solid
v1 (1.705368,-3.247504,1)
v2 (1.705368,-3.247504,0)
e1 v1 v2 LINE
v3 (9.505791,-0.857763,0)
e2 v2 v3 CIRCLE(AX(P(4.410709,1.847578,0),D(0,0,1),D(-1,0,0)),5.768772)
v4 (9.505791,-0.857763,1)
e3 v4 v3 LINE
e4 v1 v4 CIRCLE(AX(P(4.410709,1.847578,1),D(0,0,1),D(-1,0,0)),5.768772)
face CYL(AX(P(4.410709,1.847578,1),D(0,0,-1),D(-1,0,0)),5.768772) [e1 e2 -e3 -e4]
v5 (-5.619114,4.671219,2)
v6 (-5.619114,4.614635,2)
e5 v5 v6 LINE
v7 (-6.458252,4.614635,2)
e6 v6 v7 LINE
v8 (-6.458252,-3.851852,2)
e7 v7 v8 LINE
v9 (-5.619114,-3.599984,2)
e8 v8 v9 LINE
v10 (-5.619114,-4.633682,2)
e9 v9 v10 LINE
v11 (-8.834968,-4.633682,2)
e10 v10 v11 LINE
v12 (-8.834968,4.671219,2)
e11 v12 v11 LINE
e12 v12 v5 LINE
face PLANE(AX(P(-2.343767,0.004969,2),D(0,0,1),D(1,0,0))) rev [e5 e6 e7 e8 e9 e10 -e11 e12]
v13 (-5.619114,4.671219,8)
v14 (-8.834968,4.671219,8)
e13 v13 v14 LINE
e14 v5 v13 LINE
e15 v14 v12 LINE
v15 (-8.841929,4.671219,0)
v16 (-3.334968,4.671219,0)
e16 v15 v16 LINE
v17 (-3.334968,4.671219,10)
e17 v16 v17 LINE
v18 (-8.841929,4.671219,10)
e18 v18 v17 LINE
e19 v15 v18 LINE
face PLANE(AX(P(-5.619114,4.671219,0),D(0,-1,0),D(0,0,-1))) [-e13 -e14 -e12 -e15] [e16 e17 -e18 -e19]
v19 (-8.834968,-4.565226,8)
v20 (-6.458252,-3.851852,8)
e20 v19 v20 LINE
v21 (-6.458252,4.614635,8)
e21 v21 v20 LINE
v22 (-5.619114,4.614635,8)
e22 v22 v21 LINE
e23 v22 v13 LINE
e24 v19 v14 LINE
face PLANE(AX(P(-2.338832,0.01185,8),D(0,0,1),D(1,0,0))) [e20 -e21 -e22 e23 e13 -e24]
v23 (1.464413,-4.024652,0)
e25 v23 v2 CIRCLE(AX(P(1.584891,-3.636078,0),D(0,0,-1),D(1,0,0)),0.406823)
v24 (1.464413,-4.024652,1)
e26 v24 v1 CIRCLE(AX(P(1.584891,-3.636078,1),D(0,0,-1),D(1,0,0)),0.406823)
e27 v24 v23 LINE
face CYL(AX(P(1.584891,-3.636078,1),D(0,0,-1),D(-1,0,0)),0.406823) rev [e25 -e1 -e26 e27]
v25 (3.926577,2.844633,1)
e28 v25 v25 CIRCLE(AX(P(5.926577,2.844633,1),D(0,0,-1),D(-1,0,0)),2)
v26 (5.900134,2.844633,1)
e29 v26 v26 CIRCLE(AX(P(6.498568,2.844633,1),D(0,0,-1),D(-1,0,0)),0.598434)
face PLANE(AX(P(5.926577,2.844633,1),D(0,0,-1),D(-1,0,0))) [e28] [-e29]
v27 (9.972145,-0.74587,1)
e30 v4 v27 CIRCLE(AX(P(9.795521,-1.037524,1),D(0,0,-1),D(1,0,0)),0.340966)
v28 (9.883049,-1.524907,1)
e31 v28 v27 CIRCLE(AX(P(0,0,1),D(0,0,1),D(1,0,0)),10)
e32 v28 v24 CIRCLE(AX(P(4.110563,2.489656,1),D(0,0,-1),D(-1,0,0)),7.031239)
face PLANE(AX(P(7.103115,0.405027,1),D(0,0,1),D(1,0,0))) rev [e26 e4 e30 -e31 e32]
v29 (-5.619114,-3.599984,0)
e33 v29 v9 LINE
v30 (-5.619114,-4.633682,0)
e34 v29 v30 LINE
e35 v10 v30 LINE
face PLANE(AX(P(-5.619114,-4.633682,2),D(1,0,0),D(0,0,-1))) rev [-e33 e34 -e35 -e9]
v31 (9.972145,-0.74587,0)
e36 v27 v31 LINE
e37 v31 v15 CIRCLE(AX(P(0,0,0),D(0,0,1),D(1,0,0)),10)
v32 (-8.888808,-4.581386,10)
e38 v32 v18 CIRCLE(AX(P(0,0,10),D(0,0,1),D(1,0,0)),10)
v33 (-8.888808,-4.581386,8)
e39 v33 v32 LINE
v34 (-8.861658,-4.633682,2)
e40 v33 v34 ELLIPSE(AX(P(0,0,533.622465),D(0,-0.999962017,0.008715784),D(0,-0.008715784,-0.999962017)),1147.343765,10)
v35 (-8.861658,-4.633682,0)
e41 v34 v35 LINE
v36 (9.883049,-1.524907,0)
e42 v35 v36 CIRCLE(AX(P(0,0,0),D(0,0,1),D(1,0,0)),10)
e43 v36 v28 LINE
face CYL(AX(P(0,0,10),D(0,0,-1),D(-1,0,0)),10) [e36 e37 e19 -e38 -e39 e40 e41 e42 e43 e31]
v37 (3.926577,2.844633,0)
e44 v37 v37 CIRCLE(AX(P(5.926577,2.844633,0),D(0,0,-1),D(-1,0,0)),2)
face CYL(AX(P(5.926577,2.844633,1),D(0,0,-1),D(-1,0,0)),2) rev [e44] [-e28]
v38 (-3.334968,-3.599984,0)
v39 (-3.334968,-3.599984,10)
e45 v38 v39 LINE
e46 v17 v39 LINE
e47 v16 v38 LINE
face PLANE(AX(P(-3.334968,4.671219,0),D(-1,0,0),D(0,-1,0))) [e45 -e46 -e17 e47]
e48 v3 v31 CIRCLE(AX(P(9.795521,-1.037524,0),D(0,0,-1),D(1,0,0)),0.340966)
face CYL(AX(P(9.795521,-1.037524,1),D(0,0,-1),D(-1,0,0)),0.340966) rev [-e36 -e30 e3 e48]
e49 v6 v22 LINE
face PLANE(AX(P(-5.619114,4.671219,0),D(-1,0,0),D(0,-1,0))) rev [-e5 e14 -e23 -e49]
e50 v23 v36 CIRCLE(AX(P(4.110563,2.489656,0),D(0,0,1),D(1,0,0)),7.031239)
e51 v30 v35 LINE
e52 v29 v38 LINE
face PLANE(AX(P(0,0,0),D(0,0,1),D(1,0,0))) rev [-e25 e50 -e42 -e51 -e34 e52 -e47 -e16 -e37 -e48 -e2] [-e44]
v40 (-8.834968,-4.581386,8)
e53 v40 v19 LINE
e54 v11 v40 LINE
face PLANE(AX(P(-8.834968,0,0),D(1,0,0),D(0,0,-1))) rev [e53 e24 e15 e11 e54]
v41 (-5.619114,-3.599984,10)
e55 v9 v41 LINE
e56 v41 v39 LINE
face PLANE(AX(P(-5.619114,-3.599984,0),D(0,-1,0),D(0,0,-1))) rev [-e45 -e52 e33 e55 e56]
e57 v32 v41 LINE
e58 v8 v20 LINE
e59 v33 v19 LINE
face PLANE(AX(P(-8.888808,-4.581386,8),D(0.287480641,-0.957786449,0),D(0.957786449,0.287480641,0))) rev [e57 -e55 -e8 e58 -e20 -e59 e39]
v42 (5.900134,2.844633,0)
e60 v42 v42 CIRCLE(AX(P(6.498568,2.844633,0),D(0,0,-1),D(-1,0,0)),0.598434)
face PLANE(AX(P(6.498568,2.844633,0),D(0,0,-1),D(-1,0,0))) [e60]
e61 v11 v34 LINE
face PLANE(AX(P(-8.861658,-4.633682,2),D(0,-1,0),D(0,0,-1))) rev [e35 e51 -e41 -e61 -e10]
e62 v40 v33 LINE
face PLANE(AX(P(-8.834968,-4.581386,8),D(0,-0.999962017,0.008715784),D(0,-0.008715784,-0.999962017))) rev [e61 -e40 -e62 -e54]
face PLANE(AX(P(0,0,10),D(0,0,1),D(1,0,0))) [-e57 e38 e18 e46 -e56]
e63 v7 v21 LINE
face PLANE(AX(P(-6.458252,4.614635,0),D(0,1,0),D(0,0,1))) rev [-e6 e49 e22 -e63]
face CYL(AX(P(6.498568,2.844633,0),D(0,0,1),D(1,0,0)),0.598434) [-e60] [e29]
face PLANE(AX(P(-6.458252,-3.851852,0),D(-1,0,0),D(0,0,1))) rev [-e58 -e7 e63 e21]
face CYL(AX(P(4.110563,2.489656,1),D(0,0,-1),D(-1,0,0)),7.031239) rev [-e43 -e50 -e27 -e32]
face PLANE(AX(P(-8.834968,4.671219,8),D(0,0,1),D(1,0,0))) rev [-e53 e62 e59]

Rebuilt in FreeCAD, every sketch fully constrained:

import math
import FreeCAD as App
import Part
import Sketcher
from FreeCAD import Vector


def add_polygon(sketch, points):
    """Adds a closed chain of lines whose ends are joined by coincident constraints."""
    first, n = sketch.GeometryCount, len(points)
    for a, b in zip(points, points[1:] + points[:1]):
        sketch.addGeometry(Part.LineSegment(App.Vector(*a, 0), App.Vector(*b, 0)), False)
    for i in range(n):
        sketch.addConstraint(Sketcher.Constraint("Coincident", first + i, 2, first + (i + 1) % n, 1))

doc = App.newDocument("Part")
body = doc.addObject("PartDesign::Body", "Body")

# Sketch on XY plane
sketch1 = body.newObject("Sketcher::SketchObject", "Sketch")
sketch1.AttachmentSupport = (doc.getObject("XY_Plane"), [""])
sketch1.MapMode = "FlatFace"
sketch1.addGeometry(Part.Circle(Vector(0, 0, 0), Vector(0, 0, 1), 10), False)
sketch1.addConstraint([
    Sketcher.Constraint("Coincident", 0, 3, -1, 1),
    Sketcher.Constraint("Diameter", 0, 20.0),
])
pad1 = body.newObject("PartDesign::Pad", "Pad")
pad1.Profile = sketch1
pad1.Length = 10

# Sketch on XY plane
sketch2 = body.newObject("Sketcher::SketchObject", "Sketch001")
sketch2.AttachmentSupport = (doc.getObject("XY_Plane"), [""])
sketch2.MapMode = "FlatFace"
sketch2.AttachmentOffset = App.Placement(Vector(0, 0, 10), App.Rotation())
add_polygon(sketch2, [(-5.6, 4.7), (-5.6, -3.6), (-3.3, -3.6), (-3.3, 4.7)])  # lines 0-3
sketch2.addConstraint([
    Sketcher.Constraint("Vertical", 0),
    Sketcher.Constraint("Horizontal", 1),
    Sketcher.Constraint("Vertical", 2),
    Sketcher.Constraint("Horizontal", 3),
    Sketcher.Constraint("DistanceX", 1, 1, 1, 2, 2.284146),
    Sketcher.Constraint("DistanceY", 0, 2, 0, 1, 8.271203),
    Sketcher.Constraint("DistanceX", 1, 2, -1, 1, 3.334968),
    Sketcher.Constraint("DistanceY", -1, 1, 2, 2, 4.671219),
])
pocket1 = body.newObject("PartDesign::Pocket", "Pocket")
pocket1.Profile = sketch2
pocket1.Length = 10

# Sketch on XY plane
sketch3 = body.newObject("Sketcher::SketchObject", "Sketch002")
sketch3.AttachmentSupport = (doc.getObject("XY_Plane"), [""])
sketch3.MapMode = "FlatFace"
sketch3.AttachmentOffset = App.Placement(Vector(0, 0, 10), App.Rotation())
sketch3.addGeometry([
    Part.LineSegment(Vector(-5.6, 4.7, 0), Vector(-8.8, 4.7, 0)),
    Part.ArcOfCircle(Part.Circle(Vector(-2.3, 0, 0), Vector(0, 0, 1), 8), math.radians(144), math.radians(215)),
    Part.LineSegment(Vector(-8.9, -4.6, 0), Vector(-5.6, -3.6, 0)),
    Part.LineSegment(Vector(-5.6, -3.6, 0), Vector(-5.6, 4.7, 0)),
], False)
sketch3.addConstraint([
    Sketcher.Constraint("Coincident", 0, 2, 1, 1),
    Sketcher.Constraint("Coincident", 1, 2, 2, 1),
    Sketcher.Constraint("Coincident", 2, 2, 3, 1),
    Sketcher.Constraint("Coincident", 3, 2, 0, 1),
    Sketcher.Constraint("Horizontal", 0),
    Sketcher.Constraint("Vertical", 3),
    Sketcher.Constraint("Radius", 1, 8.0),
    Sketcher.Constraint("DistanceX", 0, 2, 0, 1, 3.222815),
    Sketcher.Constraint("DistanceY", 3, 1, 3, 2, 8.271203),
    Sketcher.Constraint("DistanceX", 1, 3, -1, 1, 2.338832),
    Sketcher.Constraint("DistanceY", -1, 1, 1, 3, 0.01185),
    Sketcher.Constraint("DistanceX", 0, 2, -1, 1, 8.841929),
    Sketcher.Constraint("DistanceX", 1, 2, 0, 2, 0.046879),
])
pocket2 = body.newObject("PartDesign::Pocket", "Pocket001")
pocket2.Profile = sketch3
pocket2.Length = 2

# Sketch on XY plane
sketch4 = body.newObject("Sketcher::SketchObject", "Sketch003")
sketch4.AttachmentSupport = (doc.getObject("XY_Plane"), [""])
sketch4.MapMode = "FlatFace"
sketch4.addGeometry([
    Part.LineSegment(Vector(-8.8, 4.7, 0), Vector(-5.6, 4.7, 0)),
    Part.LineSegment(Vector(-5.6, 4.7, 0), Vector(-5.6, -4.6, 0)),
    Part.LineSegment(Vector(-5.6, -4.6, 0), Vector(-8.9, -4.6, 0)),
    Part.ArcOfCircle(Part.Circle(Vector(-2.3, 0, 0), Vector(0, 0, 1), 8), math.radians(144), math.radians(215)),
], False)
sketch4.addConstraint([
    Sketcher.Constraint("Coincident", 0, 2, 1, 1),
    Sketcher.Constraint("Coincident", 1, 2, 2, 1),
    Sketcher.Constraint("Coincident", 2, 2, 3, 2),
    Sketcher.Constraint("Coincident", 3, 1, 0, 1),
    Sketcher.Constraint("Horizontal", 0),
    Sketcher.Constraint("Vertical", 1),
    Sketcher.Constraint("Horizontal", 2),
    Sketcher.Constraint("Radius", 3, 8.0),
    Sketcher.Constraint("DistanceY", 1, 2, 1, 1, 9.304902),
    Sketcher.Constraint("DistanceX", 0, 1, 0, 2, 3.222815),
    Sketcher.Constraint("DistanceX", 2, 2, 2, 1, 3.242544),
    Sketcher.Constraint("DistanceY", -1, 1, 3, 3, 0.004969),
    Sketcher.Constraint("DistanceX", 2, 2, -1, 1, 8.861658),
])
pocket3 = body.newObject("PartDesign::Pocket", "Pocket002")
pocket3.Profile = sketch4
pocket3.Length = 2
pocket3.Reversed = True

# Sketch on YZ plane
sketch5 = body.newObject("Sketcher::SketchObject", "Sketch004")
sketch5.AttachmentSupport = (doc.getObject("YZ_Plane"), [""])
sketch5.MapMode = "FlatFace"
sketch5.AttachmentOffset = App.Placement(Vector(0, 0, -12.334968), App.Rotation())
add_polygon(sketch5, [(5, 8), (5, 2), (-5, 2), (-5, 8)])  # lines 0-3
sketch5.addConstraint([
    Sketcher.Constraint("Vertical", 0),
    Sketcher.Constraint("Horizontal", 1),
    Sketcher.Constraint("Horizontal", 3),
    Sketcher.Constraint("DistanceY", 0, 2, 0, 1, 6.0),
    Sketcher.Constraint("DistanceY", -1, 1, 0, 2, 2.0),
    Sketcher.Constraint("DistanceX", 1, 2, 1, 1, 9.304902),
    Sketcher.Constraint("DistanceX", 3, 1, 3, 2, 9.252605),
    Sketcher.Constraint("DistanceX", -1, 1, 0, 2, 4.671219),
])
pocket4 = body.newObject("PartDesign::Pocket", "Pocket003")
pocket4.Profile = sketch5
pocket4.Length = 3.5
pocket4.Reversed = True

# Sketch on XY plane
sketch6 = body.newObject("Sketcher::SketchObject", "Sketch005")
sketch6.AttachmentSupport = (doc.getObject("XY_Plane"), [""])
sketch6.MapMode = "FlatFace"
sketch6.AttachmentOffset = App.Placement(Vector(0, 0, 8), App.Rotation())
add_polygon(sketch6, [(-5.6, -3.6), (-5.6, 4.6), (-6.5, 4.6), (-6.5, -3.9)])  # lines 0-3
sketch6.addConstraint([
    Sketcher.Constraint("Vertical", 0),
    Sketcher.Constraint("Horizontal", 1),
    Sketcher.Constraint("Vertical", 2),
    Sketcher.Constraint("DistanceY", 0, 1, 0, 2, 8.214619),
    Sketcher.Constraint("Distance", 3, 0.876122),
    Sketcher.Constraint("DistanceX", 1, 2, 1, 1, 0.839138),
    Sketcher.Constraint("DistanceX", 1, 2, -1, 1, 6.458252),
    Sketcher.Constraint("DistanceY", 2, 2, -1, 1, 3.851852),
])
pocket5 = body.newObject("PartDesign::Pocket", "Pocket004")
pocket5.Profile = sketch6
pocket5.Length = 8

# Sketch on XY plane
sketch7 = body.newObject("Sketcher::SketchObject", "Sketch006")
sketch7.AttachmentSupport = (doc.getObject("XY_Plane"), [""])
sketch7.MapMode = "FlatFace"
sketch7.addGeometry(Part.Circle(Vector(5.9, 2.8, 0), Vector(0, 0, 1), 2), False)
sketch7.addConstraint([
    Sketcher.Constraint("Diameter", 0, 4.0),
    Sketcher.Constraint("DistanceX", -1, 1, 0, 3, 5.926577),
    Sketcher.Constraint("DistanceY", -1, 1, 0, 3, 2.844633),
])
pocket6 = body.newObject("PartDesign::Pocket", "Pocket005")
pocket6.Profile = sketch7
pocket6.Length = 1
pocket6.Reversed = True

# Sketch on XY plane
sketch8 = body.newObject("Sketcher::SketchObject", "Sketch007")
sketch8.AttachmentSupport = (doc.getObject("XY_Plane"), [""])
sketch8.MapMode = "FlatFace"
sketch8.addGeometry([
    Part.ArcOfCircle(Part.Circle(Vector(4.11, 2.49, 0), Vector(0, 0, 1), 7.03), math.radians(-112), math.radians(-32)),
    Part.ArcOfCircle(Part.Circle(Vector(1.58, -3.64, 0), Vector(0, 0, 1), 0.41), math.radians(73), math.radians(253)),
    Part.ArcOfCircle(Part.Circle(Vector(4.41, 1.85, 0), Vector(0, 0, 1), 5.77), math.radians(-118), math.radians(-28)),
    Part.ArcOfCircle(Part.Circle(Vector(9.8, -1.04, 0), Vector(0, 0, 1), 0.34), math.radians(-32), math.radians(148)),
], False)
sketch8.addConstraint([
    Sketcher.Constraint("Coincident", 0, 1, 1, 2),
    Sketcher.Constraint("Coincident", 1, 1, 2, 1),
    Sketcher.Constraint("Coincident", 2, 2, 3, 2),
    Sketcher.Constraint("Tangent", 3, 1, 0, 2),
    Sketcher.Constraint("Radius", 0, 7.031239),
    Sketcher.Constraint("Radius", 2, 5.768772),
    Sketcher.Constraint("Radius", 1, 0.406823),
    Sketcher.Constraint("Radius", 3, 0.340966),
    Sketcher.Constraint("DistanceY", 3, 3, 2, 3, 2.885102),
    Sketcher.Constraint("DistanceX", 1, 3, 2, 2, 7.9209),
    Sketcher.Constraint("DistanceX", -1, 1, 1, 3, 1.584891),
    Sketcher.Constraint("DistanceY", 1, 3, -1, 1, 3.636078),
    Sketcher.Constraint("DistanceX", -1, 1, 2, 3, 4.410709),
    Sketcher.Constraint("DistanceX", -1, 1, 1, 1, 1.705368),
    Sketcher.Constraint("DistanceY", 2, 3, 0, 3, 0.642078),
])
pocket7 = body.newObject("PartDesign::Pocket", "Pocket006")
pocket7.Profile = sketch8
pocket7.Length = 1
pocket7.Reversed = True

# Sketch on XY plane
sketch9 = body.newObject("Sketcher::SketchObject", "Sketch008")
sketch9.AttachmentSupport = (doc.getObject("XY_Plane"), [""])
sketch9.MapMode = "FlatFace"
sketch9.AttachmentOffset = App.Placement(Vector(0, 0, 1), App.Rotation())
sketch9.addGeometry(Part.Circle(Vector(6.5, 2.8, 0), Vector(0, 0, 1), 0.6), False)
sketch9.addConstraint([
    Sketcher.Constraint("Diameter", 0, 1.196867),
    Sketcher.Constraint("DistanceX", -1, 1, 0, 3, 6.498568),
    Sketcher.Constraint("DistanceY", -1, 1, 0, 3, 2.844633),
])
pad2 = body.newObject("PartDesign::Pad", "Pad001")
pad2.Profile = sketch9
pad2.Length = 1
pad2.Reversed = True

doc.recompute()
